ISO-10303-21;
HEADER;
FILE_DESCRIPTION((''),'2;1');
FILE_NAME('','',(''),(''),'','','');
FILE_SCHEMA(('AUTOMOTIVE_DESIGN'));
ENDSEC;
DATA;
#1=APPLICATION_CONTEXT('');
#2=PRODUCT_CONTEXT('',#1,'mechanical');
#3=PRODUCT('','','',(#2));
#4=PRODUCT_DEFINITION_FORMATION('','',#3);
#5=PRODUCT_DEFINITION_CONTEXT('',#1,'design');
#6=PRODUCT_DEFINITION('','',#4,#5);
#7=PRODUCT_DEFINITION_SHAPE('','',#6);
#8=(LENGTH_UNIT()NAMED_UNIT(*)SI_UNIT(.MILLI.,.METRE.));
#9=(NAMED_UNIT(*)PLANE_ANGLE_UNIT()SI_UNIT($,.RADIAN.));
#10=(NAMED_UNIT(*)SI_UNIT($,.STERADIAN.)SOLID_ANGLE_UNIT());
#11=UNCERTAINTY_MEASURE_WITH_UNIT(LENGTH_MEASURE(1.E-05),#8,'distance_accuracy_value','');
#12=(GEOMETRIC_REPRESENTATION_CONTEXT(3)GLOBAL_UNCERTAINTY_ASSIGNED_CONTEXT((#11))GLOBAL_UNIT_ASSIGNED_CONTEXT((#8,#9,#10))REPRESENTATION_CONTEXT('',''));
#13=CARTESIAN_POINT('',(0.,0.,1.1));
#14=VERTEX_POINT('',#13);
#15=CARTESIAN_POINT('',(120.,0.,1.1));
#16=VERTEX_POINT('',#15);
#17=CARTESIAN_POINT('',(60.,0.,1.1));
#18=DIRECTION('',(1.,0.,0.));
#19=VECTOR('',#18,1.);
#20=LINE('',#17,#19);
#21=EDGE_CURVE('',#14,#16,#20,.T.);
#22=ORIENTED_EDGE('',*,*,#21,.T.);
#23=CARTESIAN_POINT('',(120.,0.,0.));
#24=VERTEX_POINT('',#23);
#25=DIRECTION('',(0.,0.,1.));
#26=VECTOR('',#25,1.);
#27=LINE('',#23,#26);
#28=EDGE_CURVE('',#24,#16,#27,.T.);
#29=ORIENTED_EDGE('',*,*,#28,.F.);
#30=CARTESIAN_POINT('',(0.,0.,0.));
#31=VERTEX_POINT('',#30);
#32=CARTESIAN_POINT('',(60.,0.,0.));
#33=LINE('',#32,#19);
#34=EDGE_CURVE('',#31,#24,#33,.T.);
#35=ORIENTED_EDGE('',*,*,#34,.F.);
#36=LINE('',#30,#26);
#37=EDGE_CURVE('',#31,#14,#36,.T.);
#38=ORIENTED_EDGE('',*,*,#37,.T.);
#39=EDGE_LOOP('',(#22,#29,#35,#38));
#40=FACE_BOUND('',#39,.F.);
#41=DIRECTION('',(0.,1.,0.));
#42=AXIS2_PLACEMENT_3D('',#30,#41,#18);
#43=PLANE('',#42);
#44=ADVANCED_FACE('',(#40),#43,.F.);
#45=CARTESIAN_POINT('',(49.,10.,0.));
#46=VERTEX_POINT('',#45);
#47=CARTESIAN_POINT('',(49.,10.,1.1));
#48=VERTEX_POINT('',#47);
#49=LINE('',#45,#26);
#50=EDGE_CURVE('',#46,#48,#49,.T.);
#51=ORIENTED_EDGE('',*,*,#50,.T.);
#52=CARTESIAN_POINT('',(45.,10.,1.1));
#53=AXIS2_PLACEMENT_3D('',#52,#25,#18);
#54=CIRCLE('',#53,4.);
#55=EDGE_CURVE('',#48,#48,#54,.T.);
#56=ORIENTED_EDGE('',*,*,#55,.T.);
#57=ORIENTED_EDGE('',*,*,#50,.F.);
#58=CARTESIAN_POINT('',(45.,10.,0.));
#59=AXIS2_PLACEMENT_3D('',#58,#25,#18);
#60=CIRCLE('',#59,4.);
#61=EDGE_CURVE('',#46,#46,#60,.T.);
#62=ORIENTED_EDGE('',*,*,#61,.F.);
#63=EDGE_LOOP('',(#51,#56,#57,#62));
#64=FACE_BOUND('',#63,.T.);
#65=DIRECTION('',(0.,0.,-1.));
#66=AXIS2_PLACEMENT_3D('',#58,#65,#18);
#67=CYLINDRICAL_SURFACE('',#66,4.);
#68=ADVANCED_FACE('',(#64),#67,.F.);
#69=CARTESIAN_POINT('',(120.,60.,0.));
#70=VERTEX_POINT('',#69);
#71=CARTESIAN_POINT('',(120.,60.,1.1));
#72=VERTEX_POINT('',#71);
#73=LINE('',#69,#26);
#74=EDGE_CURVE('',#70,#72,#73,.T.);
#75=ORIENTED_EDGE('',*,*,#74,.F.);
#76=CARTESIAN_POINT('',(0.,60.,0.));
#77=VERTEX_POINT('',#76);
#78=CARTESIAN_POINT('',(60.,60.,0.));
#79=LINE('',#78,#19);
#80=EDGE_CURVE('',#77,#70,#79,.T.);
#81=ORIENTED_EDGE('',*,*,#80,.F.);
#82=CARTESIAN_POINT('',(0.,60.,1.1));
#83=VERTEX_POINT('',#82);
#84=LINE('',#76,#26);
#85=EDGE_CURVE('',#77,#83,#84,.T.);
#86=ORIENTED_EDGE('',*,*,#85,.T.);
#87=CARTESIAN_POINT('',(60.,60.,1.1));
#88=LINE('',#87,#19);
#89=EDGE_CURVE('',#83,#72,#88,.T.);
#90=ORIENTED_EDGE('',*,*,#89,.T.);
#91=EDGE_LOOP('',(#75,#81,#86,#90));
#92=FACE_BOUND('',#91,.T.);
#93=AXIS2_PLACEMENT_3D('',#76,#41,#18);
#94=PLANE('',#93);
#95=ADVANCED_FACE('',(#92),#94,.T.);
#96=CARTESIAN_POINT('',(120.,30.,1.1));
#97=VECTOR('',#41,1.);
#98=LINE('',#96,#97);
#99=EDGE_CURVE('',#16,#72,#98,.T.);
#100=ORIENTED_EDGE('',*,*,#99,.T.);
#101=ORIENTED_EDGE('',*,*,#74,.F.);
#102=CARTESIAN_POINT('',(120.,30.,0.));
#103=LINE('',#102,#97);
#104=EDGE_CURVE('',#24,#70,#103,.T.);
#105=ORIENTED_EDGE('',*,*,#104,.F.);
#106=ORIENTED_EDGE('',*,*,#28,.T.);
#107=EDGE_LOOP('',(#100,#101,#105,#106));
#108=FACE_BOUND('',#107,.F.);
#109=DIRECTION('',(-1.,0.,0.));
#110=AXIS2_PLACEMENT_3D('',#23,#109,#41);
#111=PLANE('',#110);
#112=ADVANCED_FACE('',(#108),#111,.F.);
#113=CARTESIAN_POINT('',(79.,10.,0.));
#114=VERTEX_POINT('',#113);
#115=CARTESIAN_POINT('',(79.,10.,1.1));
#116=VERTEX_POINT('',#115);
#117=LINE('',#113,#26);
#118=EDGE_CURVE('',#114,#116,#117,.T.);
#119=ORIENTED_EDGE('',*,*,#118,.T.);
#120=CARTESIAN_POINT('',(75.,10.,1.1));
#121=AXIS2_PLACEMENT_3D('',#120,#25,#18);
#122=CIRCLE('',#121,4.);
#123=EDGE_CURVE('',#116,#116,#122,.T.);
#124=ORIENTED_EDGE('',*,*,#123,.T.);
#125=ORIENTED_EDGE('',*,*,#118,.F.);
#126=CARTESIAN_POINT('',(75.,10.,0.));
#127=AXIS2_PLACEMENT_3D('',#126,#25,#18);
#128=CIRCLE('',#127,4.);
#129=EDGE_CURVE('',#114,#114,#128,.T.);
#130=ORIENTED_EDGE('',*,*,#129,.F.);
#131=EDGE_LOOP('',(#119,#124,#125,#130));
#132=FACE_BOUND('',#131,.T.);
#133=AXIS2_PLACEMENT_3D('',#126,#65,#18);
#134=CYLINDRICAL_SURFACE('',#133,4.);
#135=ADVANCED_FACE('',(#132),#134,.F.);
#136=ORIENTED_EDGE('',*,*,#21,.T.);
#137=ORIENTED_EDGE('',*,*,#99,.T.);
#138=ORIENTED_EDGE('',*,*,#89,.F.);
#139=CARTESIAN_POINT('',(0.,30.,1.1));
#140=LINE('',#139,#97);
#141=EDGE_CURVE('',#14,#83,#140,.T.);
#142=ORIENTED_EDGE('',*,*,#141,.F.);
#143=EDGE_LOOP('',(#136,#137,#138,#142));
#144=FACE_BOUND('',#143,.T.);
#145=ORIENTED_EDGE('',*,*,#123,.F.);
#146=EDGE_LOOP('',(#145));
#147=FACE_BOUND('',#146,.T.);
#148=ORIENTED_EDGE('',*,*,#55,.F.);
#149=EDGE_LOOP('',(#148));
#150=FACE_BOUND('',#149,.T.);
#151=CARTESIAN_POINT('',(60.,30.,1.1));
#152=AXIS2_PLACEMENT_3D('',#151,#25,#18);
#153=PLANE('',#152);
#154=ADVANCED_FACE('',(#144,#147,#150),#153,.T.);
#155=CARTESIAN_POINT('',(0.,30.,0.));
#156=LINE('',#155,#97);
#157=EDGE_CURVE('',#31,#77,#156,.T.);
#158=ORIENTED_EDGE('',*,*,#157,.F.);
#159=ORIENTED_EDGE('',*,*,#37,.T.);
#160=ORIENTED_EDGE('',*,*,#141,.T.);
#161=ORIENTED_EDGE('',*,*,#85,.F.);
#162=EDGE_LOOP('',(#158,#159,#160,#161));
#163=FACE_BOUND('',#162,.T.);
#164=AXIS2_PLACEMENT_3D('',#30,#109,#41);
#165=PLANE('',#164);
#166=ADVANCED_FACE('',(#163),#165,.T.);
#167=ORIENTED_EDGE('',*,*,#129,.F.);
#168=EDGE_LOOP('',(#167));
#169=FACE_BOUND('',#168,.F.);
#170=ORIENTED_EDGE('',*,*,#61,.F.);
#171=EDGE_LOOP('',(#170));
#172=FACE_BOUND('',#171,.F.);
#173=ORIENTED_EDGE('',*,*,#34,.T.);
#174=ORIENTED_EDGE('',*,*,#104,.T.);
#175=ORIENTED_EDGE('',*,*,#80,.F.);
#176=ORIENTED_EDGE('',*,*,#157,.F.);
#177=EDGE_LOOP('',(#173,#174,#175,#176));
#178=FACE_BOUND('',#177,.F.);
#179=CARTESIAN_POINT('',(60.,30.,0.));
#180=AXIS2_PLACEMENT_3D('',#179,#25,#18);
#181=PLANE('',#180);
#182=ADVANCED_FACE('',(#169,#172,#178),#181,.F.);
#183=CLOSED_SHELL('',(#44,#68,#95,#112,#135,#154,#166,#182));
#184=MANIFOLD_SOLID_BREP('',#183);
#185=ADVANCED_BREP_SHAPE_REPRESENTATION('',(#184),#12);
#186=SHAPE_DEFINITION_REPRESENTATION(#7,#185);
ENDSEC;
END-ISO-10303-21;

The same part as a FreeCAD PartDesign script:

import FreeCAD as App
import Part
import Sketcher

doc = App.newDocument("Part")
body = doc.addObject("PartDesign::Body", "Body")

# Sketch on XY plane
sketch1 = body.newObject("Sketcher::SketchObject", "Sketch")
sketch1.AttachmentSupport = (doc.getObject("XY_Plane"), [""])
sketch1.MapMode = "FlatFace"
sketch1.addGeometry(Part.Circle(App.Vector(75, 10, 0), App.Vector(0, 0, 1), 4), False)
sketch1.addConstraint(Sketcher.Constraint("Diameter", 0, 8.0))
sketch1.addConstraint(Sketcher.Constraint("DistanceX", -1, 1, 0, 3, 75.0))
sketch1.addConstraint(Sketcher.Constraint("DistanceY", -1, 1, 0, 3, 10.0))
pad1 = body.newObject("PartDesign::Pad", "Pad")
pad1.Profile = sketch1
pad1.Length = 1.1
body2 = doc.addObject("PartDesign::Body", "Body001")

# Sketch on XY plane
sketch2 = body2.newObject("Sketcher::SketchObject", "Sketch001")
sketch2.AttachmentSupport = (doc.getObject("XY_Plane001"), [""])
sketch2.MapMode = "FlatFace"
sketch2.addGeometry(Part.Circle(App.Vector(45, 10, 0), App.Vector(0, 0, 1), 4), False)
sketch2.addConstraint(Sketcher.Constraint("Diameter", 0, 8.0))
sketch2.addConstraint(Sketcher.Constraint("DistanceX", -1, 1, 0, 3, 45.0))
sketch2.addConstraint(Sketcher.Constraint("DistanceY", -1, 1, 0, 3, 10.0))
pad2 = body2.newObject("PartDesign::Pad", "Pad001")
pad2.Profile = sketch2
pad2.Length = 1.1
body3 = doc.addObject("PartDesign::Body", "Body002")

# Sketch on XY plane
sketch3 = body3.newObject("Sketcher::SketchObject", "Sketch002")
sketch3.AttachmentSupport = (doc.getObject("XY_Plane002"), [""])
sketch3.MapMode = "FlatFace"
sketch3.addGeometry(Part.LineSegment(App.Vector(0, 60, 0), App.Vector(0, 0, 0)), False)
sketch3.addGeometry(Part.LineSegment(App.Vector(0, 0, 0), App.Vector(120, 0, 0)), False)
sketch3.addGeometry(Part.LineSegment(App.Vector(120, 0, 0), App.Vector(120, 60, 0)), False)
sketch3.addGeometry(Part.LineSegment(App.Vector(120, 60, 0), App.Vector(0, 60, 0)), False)
sketch3.addConstraint(Sketcher.Constraint("Coincident", 0, 2, 1, 1))
sketch3.addConstraint(Sketcher.Constraint("Coincident", 1, 2, 2, 1))
sketch3.addConstraint(Sketcher.Constraint("Coincident", 2, 2, 3, 1))
sketch3.addConstraint(Sketcher.Constraint("Coincident", 3, 2, 0, 1))
sketch3.addConstraint(Sketcher.Constraint("Vertical", 0))
sketch3.addConstraint(Sketcher.Constraint("Horizontal", 1))
sketch3.addConstraint(Sketcher.Constraint("Vertical", 2))
sketch3.addConstraint(Sketcher.Constraint("Horizontal", 3))
sketch3.addConstraint(Sketcher.Constraint("Coincident", 0, 2, -1, 1))
sketch3.addConstraint(Sketcher.Constraint("DistanceX", 1, 1, 1, 2, 120.0))
sketch3.addConstraint(Sketcher.Constraint("DistanceY", 0, 2, 0, 1, 60.0))
pad3 = body3.newObject("PartDesign::Pad", "Pad002")
pad3.Profile = sketch3
pad3.Length = 1.1
doc.recompute()

boolean = body3.newObject("PartDesign::Boolean", "Boolean")
boolean.Type = "Cut"
boolean.addObjects([body2])
doc.recompute()

boolean2 = body3.newObject("PartDesign::Boolean", "Boolean001")
boolean2.Type = "Cut"
boolean2.addObjects([body])

doc.recompute()
